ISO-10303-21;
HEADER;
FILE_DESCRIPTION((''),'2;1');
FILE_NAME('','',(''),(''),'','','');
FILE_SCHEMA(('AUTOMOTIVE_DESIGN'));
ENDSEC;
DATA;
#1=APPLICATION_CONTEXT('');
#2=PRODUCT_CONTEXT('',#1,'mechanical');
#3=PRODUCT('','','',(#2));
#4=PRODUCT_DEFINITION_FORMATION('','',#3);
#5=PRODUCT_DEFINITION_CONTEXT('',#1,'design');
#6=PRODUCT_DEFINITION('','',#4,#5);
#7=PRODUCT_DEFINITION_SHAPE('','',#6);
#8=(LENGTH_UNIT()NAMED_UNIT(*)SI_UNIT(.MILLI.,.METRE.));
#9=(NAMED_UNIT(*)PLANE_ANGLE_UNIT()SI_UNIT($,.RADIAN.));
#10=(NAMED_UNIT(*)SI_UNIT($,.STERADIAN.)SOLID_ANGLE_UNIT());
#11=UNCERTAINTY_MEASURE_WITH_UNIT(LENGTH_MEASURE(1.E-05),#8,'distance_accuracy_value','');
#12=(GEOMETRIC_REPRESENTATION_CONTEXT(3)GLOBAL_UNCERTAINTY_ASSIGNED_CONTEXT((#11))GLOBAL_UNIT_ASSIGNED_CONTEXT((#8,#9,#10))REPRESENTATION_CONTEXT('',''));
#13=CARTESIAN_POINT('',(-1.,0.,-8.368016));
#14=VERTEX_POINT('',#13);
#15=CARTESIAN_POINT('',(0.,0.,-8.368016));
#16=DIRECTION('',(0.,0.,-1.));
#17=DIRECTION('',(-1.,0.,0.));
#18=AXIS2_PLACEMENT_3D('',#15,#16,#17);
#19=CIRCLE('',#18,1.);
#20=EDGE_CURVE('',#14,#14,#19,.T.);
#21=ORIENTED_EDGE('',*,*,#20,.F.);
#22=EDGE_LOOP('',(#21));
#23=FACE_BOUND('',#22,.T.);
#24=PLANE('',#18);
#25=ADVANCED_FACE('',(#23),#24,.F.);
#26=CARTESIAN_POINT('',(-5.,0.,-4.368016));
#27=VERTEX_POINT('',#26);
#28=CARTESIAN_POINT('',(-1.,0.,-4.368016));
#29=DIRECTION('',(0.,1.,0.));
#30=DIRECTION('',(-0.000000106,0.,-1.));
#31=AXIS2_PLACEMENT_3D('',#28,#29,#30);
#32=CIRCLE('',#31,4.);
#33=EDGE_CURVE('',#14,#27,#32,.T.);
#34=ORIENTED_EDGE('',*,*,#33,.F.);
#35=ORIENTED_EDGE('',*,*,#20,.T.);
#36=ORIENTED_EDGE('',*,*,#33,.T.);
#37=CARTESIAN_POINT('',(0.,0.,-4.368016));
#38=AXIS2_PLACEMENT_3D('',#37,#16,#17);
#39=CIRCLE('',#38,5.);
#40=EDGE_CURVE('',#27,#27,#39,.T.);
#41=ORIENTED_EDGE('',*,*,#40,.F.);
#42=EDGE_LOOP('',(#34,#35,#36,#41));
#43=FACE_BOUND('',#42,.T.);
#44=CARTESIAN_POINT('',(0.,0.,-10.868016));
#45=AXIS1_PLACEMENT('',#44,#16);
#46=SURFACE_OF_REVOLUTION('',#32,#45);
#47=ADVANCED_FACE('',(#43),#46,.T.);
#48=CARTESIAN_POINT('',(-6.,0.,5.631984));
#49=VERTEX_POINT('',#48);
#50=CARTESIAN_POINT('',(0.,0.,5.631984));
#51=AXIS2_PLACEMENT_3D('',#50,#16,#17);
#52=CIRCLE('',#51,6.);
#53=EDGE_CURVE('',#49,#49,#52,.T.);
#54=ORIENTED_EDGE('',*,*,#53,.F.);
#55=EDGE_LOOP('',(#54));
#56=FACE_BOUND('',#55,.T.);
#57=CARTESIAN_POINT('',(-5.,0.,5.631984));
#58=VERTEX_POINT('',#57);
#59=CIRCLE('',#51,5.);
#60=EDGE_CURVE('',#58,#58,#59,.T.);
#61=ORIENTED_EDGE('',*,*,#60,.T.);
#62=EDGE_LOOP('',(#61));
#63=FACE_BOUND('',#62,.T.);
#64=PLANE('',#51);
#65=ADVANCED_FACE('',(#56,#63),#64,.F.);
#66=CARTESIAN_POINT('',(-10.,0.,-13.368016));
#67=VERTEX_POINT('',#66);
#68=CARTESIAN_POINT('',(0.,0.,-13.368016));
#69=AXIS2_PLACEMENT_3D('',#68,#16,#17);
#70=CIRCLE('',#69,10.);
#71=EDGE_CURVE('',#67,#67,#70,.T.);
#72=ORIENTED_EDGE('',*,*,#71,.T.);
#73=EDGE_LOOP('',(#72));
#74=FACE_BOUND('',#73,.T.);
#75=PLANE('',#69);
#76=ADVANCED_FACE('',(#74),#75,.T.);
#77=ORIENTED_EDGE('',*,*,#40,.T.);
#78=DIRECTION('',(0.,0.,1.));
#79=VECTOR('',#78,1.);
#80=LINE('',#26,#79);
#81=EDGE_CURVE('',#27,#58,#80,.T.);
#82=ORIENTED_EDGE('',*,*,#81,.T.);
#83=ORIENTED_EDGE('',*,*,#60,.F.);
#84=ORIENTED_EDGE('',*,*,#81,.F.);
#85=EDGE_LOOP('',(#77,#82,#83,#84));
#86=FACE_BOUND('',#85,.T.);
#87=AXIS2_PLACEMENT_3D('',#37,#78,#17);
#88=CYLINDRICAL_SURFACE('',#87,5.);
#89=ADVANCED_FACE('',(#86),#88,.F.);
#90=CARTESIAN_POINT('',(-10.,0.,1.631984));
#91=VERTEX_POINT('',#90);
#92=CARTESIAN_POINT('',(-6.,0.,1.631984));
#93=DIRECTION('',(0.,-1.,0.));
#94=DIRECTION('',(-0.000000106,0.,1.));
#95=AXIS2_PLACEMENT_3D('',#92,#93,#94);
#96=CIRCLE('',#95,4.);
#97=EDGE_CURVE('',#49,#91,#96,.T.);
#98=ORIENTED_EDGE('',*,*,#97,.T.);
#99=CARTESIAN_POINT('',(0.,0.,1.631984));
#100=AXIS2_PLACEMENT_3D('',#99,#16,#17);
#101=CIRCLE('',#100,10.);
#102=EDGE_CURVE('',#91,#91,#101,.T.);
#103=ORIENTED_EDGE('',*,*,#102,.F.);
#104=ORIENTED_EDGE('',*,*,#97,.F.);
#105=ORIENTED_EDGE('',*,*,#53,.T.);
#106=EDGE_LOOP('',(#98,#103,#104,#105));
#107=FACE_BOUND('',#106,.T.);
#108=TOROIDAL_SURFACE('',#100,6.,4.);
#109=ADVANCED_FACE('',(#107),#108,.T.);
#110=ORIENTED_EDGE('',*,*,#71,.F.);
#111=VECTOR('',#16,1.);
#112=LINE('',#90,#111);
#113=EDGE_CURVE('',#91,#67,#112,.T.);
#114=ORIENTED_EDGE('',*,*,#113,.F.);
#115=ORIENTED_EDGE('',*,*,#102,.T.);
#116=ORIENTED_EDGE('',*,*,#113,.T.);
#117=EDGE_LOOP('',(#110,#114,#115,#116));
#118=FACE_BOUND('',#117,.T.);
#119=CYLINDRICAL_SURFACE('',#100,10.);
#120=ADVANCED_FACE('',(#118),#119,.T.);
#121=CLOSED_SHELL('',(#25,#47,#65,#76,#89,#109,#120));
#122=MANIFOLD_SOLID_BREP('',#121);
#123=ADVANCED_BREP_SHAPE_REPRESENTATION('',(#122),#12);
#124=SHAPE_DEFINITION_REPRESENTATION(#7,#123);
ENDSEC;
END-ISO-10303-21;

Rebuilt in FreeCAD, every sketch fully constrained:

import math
import FreeCAD as App
import Part
import Sketcher

doc = App.newDocument("Part")
body = doc.addObject("PartDesign::Body", "Body")

# Sketch on XZ plane
sketch1 = body.newObject("Sketcher::SketchObject", "Sketch")
sketch1.AttachmentSupport = (doc.getObject("XZ_Plane"), [""])
sketch1.MapMode = "FlatFace"
sketch1.addGeometry([
    Part.LineSegment(App.Vector(-5, -4.4, 0), App.Vector(-5, 5.6, 0)),  # 0
    Part.LineSegment(App.Vector(-5, 5.6, 0), App.Vector(-6, 5.6, 0)),  # 1
    Part.ArcOfCircle(Part.Circle(App.Vector(-6, 1.6, 0), App.Vector(0, 0, 1), 4), math.radians(90), math.radians(180)),  # 2
    Part.LineSegment(App.Vector(-10, 1.6, 0), App.Vector(-10, -13.4, 0)),  # 3
    Part.LineSegment(App.Vector(-10, -13.4, 0), App.Vector(0, -13.4, 0)),  # 4
    Part.LineSegment(App.Vector(0, -13.4, 0), App.Vector(0, -8.4, 0)),  # 5
    Part.LineSegment(App.Vector(0, -8.4, 0), App.Vector(-1, -8.4, 0)),  # 6
    Part.ArcOfCircle(Part.Circle(App.Vector(-1, -4.4, 0), App.Vector(0, 0, 1), 4), math.radians(-180), math.radians(-90)),  # 7
], False)
sketch1.addConstraint([
    Sketcher.Constraint("Coincident", 0, 2, 1, 1),
    Sketcher.Constraint("Tangent", 1, 2, 2, 1),
    Sketcher.Constraint("Tangent", 2, 2, 3, 1),
    Sketcher.Constraint("Coincident", 3, 2, 4, 1),
    Sketcher.Constraint("Coincident", 4, 2, 5, 1),
    Sketcher.Constraint("Coincident", 5, 2, 6, 1),
    Sketcher.Constraint("Tangent", 6, 2, 7, 2),
    Sketcher.Constraint("Tangent", 7, 1, 0, 1),
    Sketcher.Constraint("Vertical", 0),
    Sketcher.Constraint("Horizontal", 1),
    Sketcher.Constraint("Vertical", 3),
    Sketcher.Constraint("Horizontal", 4),
    Sketcher.Constraint("Vertical", 5),
    Sketcher.Constraint("Horizontal", 6),
    Sketcher.Constraint("Equal", 2, 7),
    Sketcher.Constraint("PointOnObject", 4, 2, -2),
    Sketcher.Constraint("Equal", 1, 6),
    Sketcher.Constraint("Equal", 4, 0),
    Sketcher.Constraint("Radius", 2, 4.0),
    Sketcher.Constraint("DistanceX", 1, 2, 1, 1, 1.0),
    Sketcher.Constraint("DistanceY", 3, 2, 3, 1, 15.0),
    Sketcher.Constraint("DistanceY", -1, 1, 2, 3, 1.631984),
])
revolution = body.newObject("PartDesign::Revolution", "Revolution")
revolution.Profile = sketch1
revolution.ReferenceAxis = (sketch1, ["V_Axis"])
revolution.Angle = 360

doc.recompute()
